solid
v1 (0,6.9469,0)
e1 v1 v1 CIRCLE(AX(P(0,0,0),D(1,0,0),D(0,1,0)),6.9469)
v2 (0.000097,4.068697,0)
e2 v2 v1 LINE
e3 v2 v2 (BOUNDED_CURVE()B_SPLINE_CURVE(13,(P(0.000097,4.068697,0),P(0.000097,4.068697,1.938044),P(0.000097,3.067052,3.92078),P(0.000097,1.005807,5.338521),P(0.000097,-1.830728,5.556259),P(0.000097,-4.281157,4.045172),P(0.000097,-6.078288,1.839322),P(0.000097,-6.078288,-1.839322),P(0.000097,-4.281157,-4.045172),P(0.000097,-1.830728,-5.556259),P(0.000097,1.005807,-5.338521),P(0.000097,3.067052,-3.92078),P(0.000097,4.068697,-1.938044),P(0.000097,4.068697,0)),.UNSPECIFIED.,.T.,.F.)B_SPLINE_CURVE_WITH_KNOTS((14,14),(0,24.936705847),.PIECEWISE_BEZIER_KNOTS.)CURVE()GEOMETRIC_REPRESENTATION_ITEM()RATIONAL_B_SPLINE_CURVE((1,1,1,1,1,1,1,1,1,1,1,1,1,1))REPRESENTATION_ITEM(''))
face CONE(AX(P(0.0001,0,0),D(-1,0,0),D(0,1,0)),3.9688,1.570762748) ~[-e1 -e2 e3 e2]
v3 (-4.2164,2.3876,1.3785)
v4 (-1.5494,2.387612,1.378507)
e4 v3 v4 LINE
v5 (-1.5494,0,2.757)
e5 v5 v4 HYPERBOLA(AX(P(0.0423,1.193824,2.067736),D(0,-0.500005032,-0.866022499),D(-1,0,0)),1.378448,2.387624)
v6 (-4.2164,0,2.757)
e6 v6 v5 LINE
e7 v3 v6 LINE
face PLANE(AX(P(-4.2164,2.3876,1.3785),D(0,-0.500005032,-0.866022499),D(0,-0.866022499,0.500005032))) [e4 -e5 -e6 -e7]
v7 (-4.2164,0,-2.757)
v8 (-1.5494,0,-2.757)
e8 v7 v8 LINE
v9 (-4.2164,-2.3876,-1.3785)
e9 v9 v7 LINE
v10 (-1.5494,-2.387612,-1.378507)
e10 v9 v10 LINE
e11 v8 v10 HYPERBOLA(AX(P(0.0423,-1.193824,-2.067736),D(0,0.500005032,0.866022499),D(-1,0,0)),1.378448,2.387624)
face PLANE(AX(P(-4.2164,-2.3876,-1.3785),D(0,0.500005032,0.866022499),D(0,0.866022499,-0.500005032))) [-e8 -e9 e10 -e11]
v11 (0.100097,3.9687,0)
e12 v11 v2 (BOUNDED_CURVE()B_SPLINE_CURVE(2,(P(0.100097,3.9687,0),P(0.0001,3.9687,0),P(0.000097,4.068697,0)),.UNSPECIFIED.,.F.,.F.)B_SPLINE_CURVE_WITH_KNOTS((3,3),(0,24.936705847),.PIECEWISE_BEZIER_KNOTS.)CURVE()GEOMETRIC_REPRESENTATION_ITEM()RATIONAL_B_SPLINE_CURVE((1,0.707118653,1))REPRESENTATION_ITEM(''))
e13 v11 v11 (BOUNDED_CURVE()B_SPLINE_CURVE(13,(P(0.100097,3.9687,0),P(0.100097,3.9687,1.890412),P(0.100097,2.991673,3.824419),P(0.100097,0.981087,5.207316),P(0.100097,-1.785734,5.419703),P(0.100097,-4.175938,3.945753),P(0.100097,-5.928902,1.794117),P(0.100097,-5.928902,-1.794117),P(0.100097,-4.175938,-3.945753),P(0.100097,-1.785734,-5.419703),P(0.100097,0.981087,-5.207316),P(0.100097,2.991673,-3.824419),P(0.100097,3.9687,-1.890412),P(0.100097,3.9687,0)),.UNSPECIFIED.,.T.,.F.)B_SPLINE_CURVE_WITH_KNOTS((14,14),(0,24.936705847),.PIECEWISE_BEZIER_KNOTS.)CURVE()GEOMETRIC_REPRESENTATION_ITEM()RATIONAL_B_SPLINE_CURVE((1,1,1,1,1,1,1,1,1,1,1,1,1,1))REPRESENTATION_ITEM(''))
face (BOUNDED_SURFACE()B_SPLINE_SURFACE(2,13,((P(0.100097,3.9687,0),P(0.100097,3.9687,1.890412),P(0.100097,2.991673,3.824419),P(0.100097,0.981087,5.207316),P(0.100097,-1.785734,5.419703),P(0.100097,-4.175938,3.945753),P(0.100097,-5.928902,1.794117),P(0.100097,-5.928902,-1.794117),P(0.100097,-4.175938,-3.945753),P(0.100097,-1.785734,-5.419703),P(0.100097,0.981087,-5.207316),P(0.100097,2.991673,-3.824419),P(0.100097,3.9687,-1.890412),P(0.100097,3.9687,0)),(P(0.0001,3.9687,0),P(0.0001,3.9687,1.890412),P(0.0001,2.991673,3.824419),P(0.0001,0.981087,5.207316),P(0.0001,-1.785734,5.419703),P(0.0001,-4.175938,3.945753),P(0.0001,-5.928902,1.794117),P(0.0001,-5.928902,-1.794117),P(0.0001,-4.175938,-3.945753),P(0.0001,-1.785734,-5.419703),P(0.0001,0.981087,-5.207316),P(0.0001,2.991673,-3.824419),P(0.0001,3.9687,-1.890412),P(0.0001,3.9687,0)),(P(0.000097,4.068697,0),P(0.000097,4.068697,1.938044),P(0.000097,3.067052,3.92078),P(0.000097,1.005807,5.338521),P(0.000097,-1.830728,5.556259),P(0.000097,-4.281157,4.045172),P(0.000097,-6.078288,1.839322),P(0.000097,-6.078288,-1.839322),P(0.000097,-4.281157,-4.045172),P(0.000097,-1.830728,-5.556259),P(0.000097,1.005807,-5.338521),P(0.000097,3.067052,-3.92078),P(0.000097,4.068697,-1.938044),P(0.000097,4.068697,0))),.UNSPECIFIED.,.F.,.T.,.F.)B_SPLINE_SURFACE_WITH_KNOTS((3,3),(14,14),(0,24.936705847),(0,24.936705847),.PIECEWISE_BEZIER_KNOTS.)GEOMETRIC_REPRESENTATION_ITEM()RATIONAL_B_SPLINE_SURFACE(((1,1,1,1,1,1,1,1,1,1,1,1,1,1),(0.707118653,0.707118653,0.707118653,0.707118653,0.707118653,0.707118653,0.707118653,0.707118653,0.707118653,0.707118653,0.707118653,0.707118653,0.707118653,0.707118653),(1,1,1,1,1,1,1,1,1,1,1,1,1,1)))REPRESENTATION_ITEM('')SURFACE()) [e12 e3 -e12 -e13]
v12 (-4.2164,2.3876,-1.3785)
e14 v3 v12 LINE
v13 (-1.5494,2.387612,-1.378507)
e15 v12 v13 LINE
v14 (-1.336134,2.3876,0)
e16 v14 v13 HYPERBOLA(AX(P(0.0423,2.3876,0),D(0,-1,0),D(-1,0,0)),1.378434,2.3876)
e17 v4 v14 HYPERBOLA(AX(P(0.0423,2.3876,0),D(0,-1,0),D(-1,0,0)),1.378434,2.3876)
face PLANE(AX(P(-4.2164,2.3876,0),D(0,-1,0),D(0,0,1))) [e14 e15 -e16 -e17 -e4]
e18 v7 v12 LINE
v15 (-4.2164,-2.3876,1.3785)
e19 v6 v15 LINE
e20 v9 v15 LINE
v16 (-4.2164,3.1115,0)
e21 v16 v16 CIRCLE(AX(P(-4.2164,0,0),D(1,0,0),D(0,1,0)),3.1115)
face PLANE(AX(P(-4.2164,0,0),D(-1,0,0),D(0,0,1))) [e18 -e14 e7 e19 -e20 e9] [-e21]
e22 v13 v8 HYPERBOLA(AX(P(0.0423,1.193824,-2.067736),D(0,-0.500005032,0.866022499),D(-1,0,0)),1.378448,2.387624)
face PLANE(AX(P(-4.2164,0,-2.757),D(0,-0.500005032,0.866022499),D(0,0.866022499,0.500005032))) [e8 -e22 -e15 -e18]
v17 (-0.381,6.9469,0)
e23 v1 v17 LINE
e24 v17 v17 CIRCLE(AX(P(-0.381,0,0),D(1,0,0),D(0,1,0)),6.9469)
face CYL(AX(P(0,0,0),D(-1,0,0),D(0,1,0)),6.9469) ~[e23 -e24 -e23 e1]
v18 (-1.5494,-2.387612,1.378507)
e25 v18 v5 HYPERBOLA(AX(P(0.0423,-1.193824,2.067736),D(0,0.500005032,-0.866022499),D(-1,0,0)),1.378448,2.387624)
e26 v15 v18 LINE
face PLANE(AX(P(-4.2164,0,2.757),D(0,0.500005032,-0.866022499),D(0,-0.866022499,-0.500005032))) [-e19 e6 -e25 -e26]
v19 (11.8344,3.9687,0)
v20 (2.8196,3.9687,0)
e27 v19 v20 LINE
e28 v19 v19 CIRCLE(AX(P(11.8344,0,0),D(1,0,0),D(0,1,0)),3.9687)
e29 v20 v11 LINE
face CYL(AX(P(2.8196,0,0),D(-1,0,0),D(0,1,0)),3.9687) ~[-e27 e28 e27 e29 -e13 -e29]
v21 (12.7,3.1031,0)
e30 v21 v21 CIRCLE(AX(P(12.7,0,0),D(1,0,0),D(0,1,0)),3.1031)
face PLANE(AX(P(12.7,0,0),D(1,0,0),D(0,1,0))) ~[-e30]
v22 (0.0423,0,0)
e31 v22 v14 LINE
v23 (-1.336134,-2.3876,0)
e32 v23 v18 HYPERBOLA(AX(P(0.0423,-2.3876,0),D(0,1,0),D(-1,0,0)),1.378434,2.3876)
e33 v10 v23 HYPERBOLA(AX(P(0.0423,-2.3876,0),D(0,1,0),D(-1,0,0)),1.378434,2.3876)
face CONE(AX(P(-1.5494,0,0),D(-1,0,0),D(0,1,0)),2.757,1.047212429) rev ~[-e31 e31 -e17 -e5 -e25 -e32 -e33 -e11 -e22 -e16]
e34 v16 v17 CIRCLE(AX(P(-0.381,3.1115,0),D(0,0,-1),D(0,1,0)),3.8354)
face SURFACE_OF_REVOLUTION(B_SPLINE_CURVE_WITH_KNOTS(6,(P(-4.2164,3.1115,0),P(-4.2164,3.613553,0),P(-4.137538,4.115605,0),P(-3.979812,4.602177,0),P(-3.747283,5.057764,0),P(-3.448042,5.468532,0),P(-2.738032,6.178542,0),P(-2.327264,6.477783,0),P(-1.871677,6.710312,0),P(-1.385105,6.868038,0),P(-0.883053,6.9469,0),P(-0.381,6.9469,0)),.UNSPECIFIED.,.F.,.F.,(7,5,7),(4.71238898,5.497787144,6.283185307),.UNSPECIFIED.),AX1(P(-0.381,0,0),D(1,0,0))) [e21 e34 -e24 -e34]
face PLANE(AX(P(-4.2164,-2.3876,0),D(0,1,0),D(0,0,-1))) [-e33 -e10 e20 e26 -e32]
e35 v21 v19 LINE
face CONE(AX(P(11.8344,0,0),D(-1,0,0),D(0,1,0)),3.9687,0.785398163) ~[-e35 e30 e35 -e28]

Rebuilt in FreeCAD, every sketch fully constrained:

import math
import FreeCAD as App
import Part
import Sketcher
from FreeCAD import Vector
Q = App.Units.Quantity


def edges_at(feature, points):
    """Names of the edges that pass closest to the given points."""
    edges = feature.Shape.Edges
    near = lambda p: min(range(len(edges)), key=lambda i: edges[i].distToShape(Part.Vertex(*p))[0])
    return sorted({f"Edge{near(p) + 1}" for p in points})


def add_polygon(sketch, points):
    """Adds a closed chain of lines whose ends are joined by coincident constraints."""
    first, n = sketch.GeometryCount, len(points)
    for a, b in zip(points, points[1:] + points[:1]):
        sketch.addGeometry(Part.LineSegment(App.Vector(*a, 0), App.Vector(*b, 0)), False)
    for i in range(n):
        sketch.addConstraint(Sketcher.Constraint("Coincident", first + i, 2, first + (i + 1) % n, 1))

doc = App.newDocument("Part")
body = doc.addObject("PartDesign::Body", "Body")

# Sketch on XY plane
sketch1 = doc.addObject("Sketcher::SketchObject", "Sketch")
body.addObject(sketch1)
sketch1.AttachmentSupport = (doc.XY_Plane, [""])
sketch1.MapMode = "FlatFace"
add_polygon(sketch1, [(0.0423, 0), (12.7, 0), (12.7, 3.9687), (2.8196, 3.9687), (0.0001, 3.9688), (0, 6.9469), (-4.2164, 6.9469), (-4.2164, 2.757), (-1.5494, 2.757)])  # lines 0-8
sketch1.addConstraint([
    Sketcher.Constraint("Horizontal", 0),
    Sketcher.Constraint("Vertical", 1),
    Sketcher.Constraint("Horizontal", 2),
    Sketcher.Constraint("Horizontal", 3),
    Sketcher.Constraint("Vertical", 4),
    Sketcher.Constraint("Horizontal", 5),
    Sketcher.Constraint("Vertical", 6),
    Sketcher.Constraint("Horizontal", 7),
    Sketcher.Constraint("PointOnObject", 0, 2, -1),
    Sketcher.Constraint("PointOnObject", 3, 2, -2),
    Sketcher.Constraint("DistanceX", -1, 1, 0, 2, Q("0.5 in")),
    Sketcher.Constraint("DistanceX", 2, 2, 2, 1, Q("0.389 in")),
    Sketcher.Constraint("DistanceX", 5, 2, 5, 1, Q("0.166 in")),
    Sketcher.Constraint("DistanceX", 7, 1, 7, 2, Q("0.105 in")),
    Sketcher.Constraint("Angle", 8, Q("-60.0009 deg")),
    Sketcher.Constraint("DistanceY", 1, 1, 1, 2, Q("0.156248 in")),
    Sketcher.Constraint("DistanceX", 0, 1, 0, 2, Q("12.6577 mm")),
    Sketcher.Constraint("DistanceY", 4, 1, 4, 2, Q("2.978 mm")),
])
revolution = doc.addObject("PartDesign::Revolution", "Revolution")
body.addObject(revolution)
revolution.Profile = sketch1
revolution.ReferenceAxis = (sketch1, ["H_Axis"])
revolution.Angle = 360

# Sketch on YZ plane
sketch2 = doc.addObject("Sketcher::SketchObject", "Sketch001")
body.addObject(sketch2)
sketch2.AttachmentSupport = (doc.YZ_Plane, [""])
sketch2.MapMode = "FlatFace"
sketch2.AttachmentOffset = App.Placement(Vector(0, 0, -0.166 * 25.4), App.Rotation())
sketch2.addGeometry([
    Part.LineSegment(Vector(2.3876, 1.3785, 0), Vector(0, 2.757, 0)),  # 0
    Part.ArcOfCircle(Part.Circle(Vector(0, 0, 0), Vector(0, 0, 1), 2.757), math.radians(30.000333), math.radians(90)),  # 1
    Part.ArcOfCircle(Part.Circle(Vector(0, 0, 0), Vector(0, 0, 1), 2.757), math.radians(90), math.radians(149.999667)),  # 2
    Part.LineSegment(Vector(0, 2.757, 0), Vector(-2.3876, 1.3785, 0)),  # 3
    Part.ArcOfCircle(Part.Circle(Vector(0, 0, 0), Vector(0, 0, 1), 2.757), math.radians(-30.000333), math.radians(30.000333)),  # 4
    Part.LineSegment(Vector(2.3876, 1.3785, 0), Vector(2.3876, -1.3785, 0)),  # 5
    Part.LineSegment(Vector(-2.3876, 1.3785, 0), Vector(-2.3876, -1.3785, 0)),  # 6
    Part.ArcOfCircle(Part.Circle(Vector(0, 0, 0), Vector(0, 0, 1), 2.757), math.radians(149.999667), math.radians(210.000333)),  # 7
    Part.LineSegment(Vector(-2.3876, -1.3785, 0), Vector(0, -2.757, 0)),  # 8
    Part.ArcOfCircle(Part.Circle(Vector(0, 0, 0), Vector(0, 0, 1), 2.757), math.radians(-149.999667), math.radians(-90)),  # 9
    Part.ArcOfCircle(Part.Circle(Vector(0, 0, 0), Vector(0, 0, 1), 2.757), math.radians(-90), math.radians(-30.000333)),  # 10
    Part.LineSegment(Vector(0, -2.757, 0), Vector(2.3876, -1.3785, 0)),  # 11
], False)
sketch2.addConstraint([
    Sketcher.Constraint("Coincident", 0, 1, 1, 1),
    Sketcher.Constraint("Coincident", 1, 2, 0, 2),
    Sketcher.Constraint("Coincident", 2, 1, 3, 1),
    Sketcher.Constraint("Coincident", 3, 2, 2, 2),
    Sketcher.Constraint("Coincident", 4, 1, 5, 2),
    Sketcher.Constraint("Coincident", 5, 1, 4, 2),
    Sketcher.Constraint("Coincident", 6, 1, 7, 1),
    Sketcher.Constraint("Coincident", 7, 2, 6, 2),
    Sketcher.Constraint("Coincident", 8, 1, 9, 1),
    Sketcher.Constraint("Coincident", 9, 2, 8, 2),
    Sketcher.Constraint("Coincident", 10, 1, 11, 1),
    Sketcher.Constraint("Coincident", 11, 2, 10, 2),
    Sketcher.Constraint("Vertical", 5),
    Sketcher.Constraint("Vertical", 6),
    Sketcher.Constraint("Coincident", 1, 3, -1, 1),
    Sketcher.Constraint("Coincident", 2, 3, -1, 1),
    Sketcher.Constraint("Coincident", 4, 3, -1, 1),
    Sketcher.Constraint("Coincident", 7, 3, -1, 1),
    Sketcher.Constraint("Coincident", 9, 3, -1, 1),
    Sketcher.Constraint("Coincident", 10, 3, -1, 1),
    Sketcher.Constraint("Coincident", 2, 1, 1, 2),
    Sketcher.Constraint("Coincident", 5, 1, 0, 1),
    Sketcher.Constraint("Coincident", 6, 1, 3, 2),
    Sketcher.Constraint("Coincident", 8, 1, 7, 2),
    Sketcher.Constraint("Coincident", 10, 1, 9, 2),
    Sketcher.Constraint("PointOnObject", 1, 2, -2),
    Sketcher.Constraint("PointOnObject", 9, 2, -2),
    Sketcher.Constraint("Parallel", 0, 8),
    Sketcher.Constraint("Parallel", 3, 11),
    Sketcher.Constraint("Angle", 0, Q("149.9997 deg")),
    Sketcher.Constraint("Radius", 1, Q("2.757 mm")),
])
pad1 = doc.addObject("PartDesign::Pad", "Pad")
body.addObject(pad1)
pad1.Profile = sketch2
pad1.Type = "UpToFirst"
doc.recompute()

fillet = doc.addObject("PartDesign::Fillet", "Fillet")
body.addObject(fillet)
fillet.Base = (pad1, edges_at(pad1, [(-4.216, -6.947, 0)]))
fillet.Radius = Q("0.151 in")
doc.recompute()

chamfer = doc.addObject("PartDesign::Chamfer", "Chamfer")
body.addObject(chamfer)
chamfer.Base = (fillet, edges_at(fillet, [(12.7, -3.969, 0)]))
chamfer.ChamferType = "Two distances"
chamfer.Size = 0.8656
chamfer.Size2 = 0.8656
doc.recompute()

fillet2 = doc.addObject("PartDesign::Fillet", "Fillet001")
body.addObject(fillet2)
fillet2.Base = (chamfer, edges_at(chamfer, [(0, -3.969, 0)]))
fillet2.Radius = 0.1

doc.recompute()
